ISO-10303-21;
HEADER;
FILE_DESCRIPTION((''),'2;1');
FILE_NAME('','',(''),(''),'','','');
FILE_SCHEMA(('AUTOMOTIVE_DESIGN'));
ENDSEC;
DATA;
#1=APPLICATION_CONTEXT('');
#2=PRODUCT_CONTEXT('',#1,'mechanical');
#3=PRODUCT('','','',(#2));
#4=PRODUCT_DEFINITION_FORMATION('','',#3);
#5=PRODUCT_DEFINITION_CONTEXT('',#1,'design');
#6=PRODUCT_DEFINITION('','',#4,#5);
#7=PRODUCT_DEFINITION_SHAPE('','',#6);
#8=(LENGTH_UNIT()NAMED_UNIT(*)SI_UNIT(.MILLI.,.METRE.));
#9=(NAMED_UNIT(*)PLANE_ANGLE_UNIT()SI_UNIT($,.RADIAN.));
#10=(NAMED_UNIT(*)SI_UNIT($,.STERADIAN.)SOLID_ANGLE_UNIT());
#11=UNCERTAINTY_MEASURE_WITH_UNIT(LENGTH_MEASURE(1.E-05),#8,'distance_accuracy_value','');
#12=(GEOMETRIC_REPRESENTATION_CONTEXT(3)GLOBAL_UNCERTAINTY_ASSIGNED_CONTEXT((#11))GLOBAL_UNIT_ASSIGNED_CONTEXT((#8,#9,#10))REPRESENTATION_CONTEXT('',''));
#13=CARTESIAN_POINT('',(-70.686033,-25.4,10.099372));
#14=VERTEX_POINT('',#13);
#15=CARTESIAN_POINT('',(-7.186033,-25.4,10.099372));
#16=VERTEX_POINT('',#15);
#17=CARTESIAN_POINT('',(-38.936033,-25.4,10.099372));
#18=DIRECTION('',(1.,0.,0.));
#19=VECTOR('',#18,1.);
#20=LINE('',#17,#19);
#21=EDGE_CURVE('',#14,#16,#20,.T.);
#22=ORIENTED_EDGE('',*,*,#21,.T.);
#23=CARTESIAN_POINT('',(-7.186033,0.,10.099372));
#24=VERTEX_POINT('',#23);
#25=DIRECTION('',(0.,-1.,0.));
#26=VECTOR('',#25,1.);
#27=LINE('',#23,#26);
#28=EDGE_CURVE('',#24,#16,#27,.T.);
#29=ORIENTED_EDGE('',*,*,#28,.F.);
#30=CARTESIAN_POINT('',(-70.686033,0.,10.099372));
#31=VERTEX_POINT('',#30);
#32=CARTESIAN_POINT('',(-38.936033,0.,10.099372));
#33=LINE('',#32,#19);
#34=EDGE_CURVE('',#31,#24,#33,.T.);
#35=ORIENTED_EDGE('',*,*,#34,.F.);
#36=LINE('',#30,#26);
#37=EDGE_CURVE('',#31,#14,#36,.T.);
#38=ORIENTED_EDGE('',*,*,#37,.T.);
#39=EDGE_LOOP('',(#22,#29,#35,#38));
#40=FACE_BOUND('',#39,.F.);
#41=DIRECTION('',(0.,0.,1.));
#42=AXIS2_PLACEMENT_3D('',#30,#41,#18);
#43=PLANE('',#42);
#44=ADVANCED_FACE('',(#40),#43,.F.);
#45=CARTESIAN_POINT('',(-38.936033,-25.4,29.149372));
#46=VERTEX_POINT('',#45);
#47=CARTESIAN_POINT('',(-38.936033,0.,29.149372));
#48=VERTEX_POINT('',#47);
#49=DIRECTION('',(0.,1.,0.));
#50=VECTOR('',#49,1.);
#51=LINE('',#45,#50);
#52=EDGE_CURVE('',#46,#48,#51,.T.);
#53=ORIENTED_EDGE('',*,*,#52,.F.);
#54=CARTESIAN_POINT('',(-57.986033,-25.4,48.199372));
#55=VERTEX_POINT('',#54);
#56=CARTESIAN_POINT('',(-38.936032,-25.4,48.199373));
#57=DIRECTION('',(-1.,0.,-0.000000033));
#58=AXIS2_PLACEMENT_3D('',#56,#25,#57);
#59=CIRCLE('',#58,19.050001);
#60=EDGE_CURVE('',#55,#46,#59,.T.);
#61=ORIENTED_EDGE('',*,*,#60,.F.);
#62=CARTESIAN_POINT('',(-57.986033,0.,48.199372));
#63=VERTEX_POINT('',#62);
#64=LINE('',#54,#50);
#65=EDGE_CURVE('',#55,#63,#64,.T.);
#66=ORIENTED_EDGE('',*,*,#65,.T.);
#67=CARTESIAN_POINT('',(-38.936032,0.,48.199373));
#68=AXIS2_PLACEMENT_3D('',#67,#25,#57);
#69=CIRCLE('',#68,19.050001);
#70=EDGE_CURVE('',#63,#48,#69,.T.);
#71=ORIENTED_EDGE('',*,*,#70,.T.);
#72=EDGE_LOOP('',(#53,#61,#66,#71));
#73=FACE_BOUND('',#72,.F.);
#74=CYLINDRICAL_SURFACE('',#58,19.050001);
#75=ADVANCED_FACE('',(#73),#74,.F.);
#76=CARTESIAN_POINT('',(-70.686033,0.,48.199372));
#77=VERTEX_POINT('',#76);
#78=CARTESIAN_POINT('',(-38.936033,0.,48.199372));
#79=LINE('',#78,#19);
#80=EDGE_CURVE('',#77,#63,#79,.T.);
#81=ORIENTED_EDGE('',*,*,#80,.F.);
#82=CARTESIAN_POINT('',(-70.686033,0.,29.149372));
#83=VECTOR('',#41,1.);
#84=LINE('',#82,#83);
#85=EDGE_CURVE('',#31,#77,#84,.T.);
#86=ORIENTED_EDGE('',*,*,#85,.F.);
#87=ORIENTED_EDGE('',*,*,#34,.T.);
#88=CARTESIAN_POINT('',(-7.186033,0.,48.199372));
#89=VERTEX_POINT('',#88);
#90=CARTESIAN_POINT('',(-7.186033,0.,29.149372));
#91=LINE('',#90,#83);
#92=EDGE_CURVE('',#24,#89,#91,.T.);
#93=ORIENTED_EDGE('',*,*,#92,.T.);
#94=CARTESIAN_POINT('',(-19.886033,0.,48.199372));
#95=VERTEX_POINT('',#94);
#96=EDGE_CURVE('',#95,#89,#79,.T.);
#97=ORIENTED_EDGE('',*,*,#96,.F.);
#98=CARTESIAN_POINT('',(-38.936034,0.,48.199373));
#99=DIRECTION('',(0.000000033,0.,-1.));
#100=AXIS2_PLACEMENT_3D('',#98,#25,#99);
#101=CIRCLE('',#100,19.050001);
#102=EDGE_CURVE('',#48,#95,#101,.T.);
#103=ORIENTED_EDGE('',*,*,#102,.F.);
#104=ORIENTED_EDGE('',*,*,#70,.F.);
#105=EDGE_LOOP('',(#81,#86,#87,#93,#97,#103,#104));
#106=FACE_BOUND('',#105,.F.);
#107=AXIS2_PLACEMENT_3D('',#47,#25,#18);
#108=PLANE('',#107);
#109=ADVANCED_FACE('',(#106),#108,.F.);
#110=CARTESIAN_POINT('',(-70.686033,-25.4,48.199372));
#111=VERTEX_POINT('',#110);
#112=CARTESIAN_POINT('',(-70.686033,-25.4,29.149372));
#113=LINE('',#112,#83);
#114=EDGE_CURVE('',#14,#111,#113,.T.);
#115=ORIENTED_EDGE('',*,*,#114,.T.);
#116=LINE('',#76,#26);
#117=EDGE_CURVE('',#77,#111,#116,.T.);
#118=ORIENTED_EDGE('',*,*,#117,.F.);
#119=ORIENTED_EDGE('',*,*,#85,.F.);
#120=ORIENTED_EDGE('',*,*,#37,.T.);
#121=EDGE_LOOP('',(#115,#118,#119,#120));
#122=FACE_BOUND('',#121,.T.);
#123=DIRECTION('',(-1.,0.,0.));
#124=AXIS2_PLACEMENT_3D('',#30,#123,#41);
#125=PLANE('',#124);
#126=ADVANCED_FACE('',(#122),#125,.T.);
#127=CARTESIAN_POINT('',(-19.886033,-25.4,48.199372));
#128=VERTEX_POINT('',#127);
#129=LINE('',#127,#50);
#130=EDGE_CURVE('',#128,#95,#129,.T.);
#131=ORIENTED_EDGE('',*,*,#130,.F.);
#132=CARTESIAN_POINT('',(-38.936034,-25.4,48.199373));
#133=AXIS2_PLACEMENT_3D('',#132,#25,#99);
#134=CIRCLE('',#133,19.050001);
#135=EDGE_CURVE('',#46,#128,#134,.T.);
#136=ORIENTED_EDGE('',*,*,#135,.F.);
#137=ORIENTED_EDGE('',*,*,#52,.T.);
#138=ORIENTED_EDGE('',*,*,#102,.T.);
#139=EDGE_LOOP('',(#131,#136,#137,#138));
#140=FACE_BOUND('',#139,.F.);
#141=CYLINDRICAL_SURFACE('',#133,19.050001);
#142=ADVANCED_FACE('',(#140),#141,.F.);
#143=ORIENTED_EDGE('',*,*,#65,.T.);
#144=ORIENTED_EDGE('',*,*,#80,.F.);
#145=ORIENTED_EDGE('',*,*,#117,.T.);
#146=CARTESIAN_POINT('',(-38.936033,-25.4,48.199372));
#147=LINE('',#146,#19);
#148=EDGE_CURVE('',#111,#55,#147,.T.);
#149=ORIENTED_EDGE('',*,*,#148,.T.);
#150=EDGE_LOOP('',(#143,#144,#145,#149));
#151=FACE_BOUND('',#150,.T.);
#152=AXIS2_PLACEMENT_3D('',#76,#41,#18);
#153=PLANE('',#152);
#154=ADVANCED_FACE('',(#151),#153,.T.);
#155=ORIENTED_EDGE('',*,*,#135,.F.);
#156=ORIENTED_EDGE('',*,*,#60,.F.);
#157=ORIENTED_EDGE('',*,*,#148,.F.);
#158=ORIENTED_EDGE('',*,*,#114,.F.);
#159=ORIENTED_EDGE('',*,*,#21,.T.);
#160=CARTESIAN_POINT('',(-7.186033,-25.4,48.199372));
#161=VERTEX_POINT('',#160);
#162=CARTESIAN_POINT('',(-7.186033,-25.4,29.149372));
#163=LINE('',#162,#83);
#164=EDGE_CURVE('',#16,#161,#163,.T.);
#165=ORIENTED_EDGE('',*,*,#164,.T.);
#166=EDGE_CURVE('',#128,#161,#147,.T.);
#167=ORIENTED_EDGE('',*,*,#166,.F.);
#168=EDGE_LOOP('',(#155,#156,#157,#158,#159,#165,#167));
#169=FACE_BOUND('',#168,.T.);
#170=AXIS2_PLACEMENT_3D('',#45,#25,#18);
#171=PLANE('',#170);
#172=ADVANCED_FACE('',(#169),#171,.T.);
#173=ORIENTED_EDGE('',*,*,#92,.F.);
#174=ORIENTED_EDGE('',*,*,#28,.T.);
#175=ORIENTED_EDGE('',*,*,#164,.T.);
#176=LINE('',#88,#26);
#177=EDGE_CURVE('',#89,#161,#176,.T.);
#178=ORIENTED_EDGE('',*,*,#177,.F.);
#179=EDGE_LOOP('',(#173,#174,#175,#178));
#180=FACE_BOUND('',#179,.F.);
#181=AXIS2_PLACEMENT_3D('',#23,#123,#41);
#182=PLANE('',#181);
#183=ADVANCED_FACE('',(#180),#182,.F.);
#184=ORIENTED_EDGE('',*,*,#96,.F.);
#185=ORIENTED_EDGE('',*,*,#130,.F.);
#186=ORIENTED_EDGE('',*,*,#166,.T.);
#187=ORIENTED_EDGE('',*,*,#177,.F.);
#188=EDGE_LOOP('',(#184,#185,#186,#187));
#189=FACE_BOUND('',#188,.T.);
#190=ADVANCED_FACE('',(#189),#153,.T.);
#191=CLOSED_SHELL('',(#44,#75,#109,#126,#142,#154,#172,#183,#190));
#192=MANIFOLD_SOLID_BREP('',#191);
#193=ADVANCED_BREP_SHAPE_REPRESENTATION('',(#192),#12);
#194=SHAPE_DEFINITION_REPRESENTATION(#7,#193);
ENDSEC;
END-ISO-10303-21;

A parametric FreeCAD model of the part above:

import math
import FreeCAD as App
import Part
import Sketcher
from FreeCAD import Vector
Q = App.Units.Quantity

doc = App.newDocument("Part")
body = doc.addObject("PartDesign::Body", "Body")

# Sketch on XZ plane
sketch1 = body.newObject("Sketcher::SketchObject", "Sketch")
sketch1.AttachmentSupport = (doc.getObject("XZ_Plane"), [""])
sketch1.MapMode = "FlatFace"
sketch1.addGeometry(Part.LineSegment(Vector(-71, 48, 0), Vector(-71, 10, 0)), False)
sketch1.addGeometry(Part.LineSegment(Vector(-71, 10, 0), Vector(-7, 10, 0)), False)
sketch1.addGeometry(Part.LineSegment(Vector(-7, 10, 0), Vector(-7, 48, 0)), False)
sketch1.addGeometry(Part.LineSegment(Vector(-7, 48, 0), Vector(-71, 48, 0)), False)
sketch1.addConstraint(Sketcher.Constraint("Coincident", 0, 2, 1, 1))
sketch1.addConstraint(Sketcher.Constraint("Coincident", 1, 2, 2, 1))
sketch1.addConstraint(Sketcher.Constraint("Coincident", 2, 2, 3, 1))
sketch1.addConstraint(Sketcher.Constraint("Coincident", 3, 2, 0, 1))
sketch1.addConstraint(Sketcher.Constraint("Vertical", 0))
sketch1.addConstraint(Sketcher.Constraint("Horizontal", 1))
sketch1.addConstraint(Sketcher.Constraint("Vertical", 2))
sketch1.addConstraint(Sketcher.Constraint("Horizontal", 3))
sketch1.addConstraint(Sketcher.Constraint("DistanceX", 1, 1, 1, 2, Q("2.5 in")))
sketch1.addConstraint(Sketcher.Constraint("DistanceY", 0, 2, 0, 1, Q("1.5 in")))
sketch1.addConstraint(Sketcher.Constraint("DistanceY", -1, 1, 2, 2, Q("48.199372 mm")))
sketch1.addConstraint(Sketcher.Constraint("DistanceX", 0, 2, -1, 1, Q("70.686033 mm")))
pad1 = body.newObject("PartDesign::Pad", "Pad")
pad1.Profile = sketch1
pad1.Length = Q("1 in")

# Sketch on XZ plane
sketch2 = body.newObject("Sketcher::SketchObject", "Sketch001")
sketch2.AttachmentSupport = (doc.getObject("XZ_Plane"), [""])
sketch2.MapMode = "FlatFace"
sketch2.AttachmentOffset = App.Placement(Vector(0, 0, 1 * 25.4), App.Rotation())
sketch2.addGeometry(Part.LineSegment(Vector(-20, 48, 0), Vector(-58, 48, 0)), False)
sketch2.addGeometry(Part.ArcOfCircle(Part.Circle(Vector(-39, 48, 0), Vector(0, 0, 1), 19), math.radians(-180), math.radians(-90)), False)
sketch2.addGeometry(Part.ArcOfCircle(Part.Circle(Vector(-39, 48, 0), Vector(0, 0, 1), 19), math.radians(-90), math.radians(0)), False)
sketch2.addConstraint(Sketcher.Constraint("Coincident", 0, 2, 1, 1))
sketch2.addConstraint(Sketcher.Constraint("Tangent", 1, 2, 2, 1))
sketch2.addConstraint(Sketcher.Constraint("Coincident", 2, 2, 0, 1))
sketch2.addConstraint(Sketcher.Constraint("Horizontal", 0))
sketch2.addConstraint(Sketcher.Constraint("Equal", 1, 2))
sketch2.addConstraint(Sketcher.Constraint("Horizontal", 2, 3, 0, 2))
sketch2.addConstraint(Sketcher.Constraint("Vertical", 2, 3, 1, 2))
sketch2.addConstraint(Sketcher.Constraint("Radius", 1, Q("0.75 in")))
sketch2.addConstraint(Sketcher.Constraint("DistanceY", -1, 1, 0, 2, Q("48.199372 mm")))
sketch2.addConstraint(Sketcher.Constraint("DistanceX", 1, 3, -1, 1, Q("38.936032 mm")))
pocket1 = body.newObject("PartDesign::Pocket", "Pocket")
pocket1.Profile = sketch2
pocket1.Type = "ThroughAll"

doc.recompute()
